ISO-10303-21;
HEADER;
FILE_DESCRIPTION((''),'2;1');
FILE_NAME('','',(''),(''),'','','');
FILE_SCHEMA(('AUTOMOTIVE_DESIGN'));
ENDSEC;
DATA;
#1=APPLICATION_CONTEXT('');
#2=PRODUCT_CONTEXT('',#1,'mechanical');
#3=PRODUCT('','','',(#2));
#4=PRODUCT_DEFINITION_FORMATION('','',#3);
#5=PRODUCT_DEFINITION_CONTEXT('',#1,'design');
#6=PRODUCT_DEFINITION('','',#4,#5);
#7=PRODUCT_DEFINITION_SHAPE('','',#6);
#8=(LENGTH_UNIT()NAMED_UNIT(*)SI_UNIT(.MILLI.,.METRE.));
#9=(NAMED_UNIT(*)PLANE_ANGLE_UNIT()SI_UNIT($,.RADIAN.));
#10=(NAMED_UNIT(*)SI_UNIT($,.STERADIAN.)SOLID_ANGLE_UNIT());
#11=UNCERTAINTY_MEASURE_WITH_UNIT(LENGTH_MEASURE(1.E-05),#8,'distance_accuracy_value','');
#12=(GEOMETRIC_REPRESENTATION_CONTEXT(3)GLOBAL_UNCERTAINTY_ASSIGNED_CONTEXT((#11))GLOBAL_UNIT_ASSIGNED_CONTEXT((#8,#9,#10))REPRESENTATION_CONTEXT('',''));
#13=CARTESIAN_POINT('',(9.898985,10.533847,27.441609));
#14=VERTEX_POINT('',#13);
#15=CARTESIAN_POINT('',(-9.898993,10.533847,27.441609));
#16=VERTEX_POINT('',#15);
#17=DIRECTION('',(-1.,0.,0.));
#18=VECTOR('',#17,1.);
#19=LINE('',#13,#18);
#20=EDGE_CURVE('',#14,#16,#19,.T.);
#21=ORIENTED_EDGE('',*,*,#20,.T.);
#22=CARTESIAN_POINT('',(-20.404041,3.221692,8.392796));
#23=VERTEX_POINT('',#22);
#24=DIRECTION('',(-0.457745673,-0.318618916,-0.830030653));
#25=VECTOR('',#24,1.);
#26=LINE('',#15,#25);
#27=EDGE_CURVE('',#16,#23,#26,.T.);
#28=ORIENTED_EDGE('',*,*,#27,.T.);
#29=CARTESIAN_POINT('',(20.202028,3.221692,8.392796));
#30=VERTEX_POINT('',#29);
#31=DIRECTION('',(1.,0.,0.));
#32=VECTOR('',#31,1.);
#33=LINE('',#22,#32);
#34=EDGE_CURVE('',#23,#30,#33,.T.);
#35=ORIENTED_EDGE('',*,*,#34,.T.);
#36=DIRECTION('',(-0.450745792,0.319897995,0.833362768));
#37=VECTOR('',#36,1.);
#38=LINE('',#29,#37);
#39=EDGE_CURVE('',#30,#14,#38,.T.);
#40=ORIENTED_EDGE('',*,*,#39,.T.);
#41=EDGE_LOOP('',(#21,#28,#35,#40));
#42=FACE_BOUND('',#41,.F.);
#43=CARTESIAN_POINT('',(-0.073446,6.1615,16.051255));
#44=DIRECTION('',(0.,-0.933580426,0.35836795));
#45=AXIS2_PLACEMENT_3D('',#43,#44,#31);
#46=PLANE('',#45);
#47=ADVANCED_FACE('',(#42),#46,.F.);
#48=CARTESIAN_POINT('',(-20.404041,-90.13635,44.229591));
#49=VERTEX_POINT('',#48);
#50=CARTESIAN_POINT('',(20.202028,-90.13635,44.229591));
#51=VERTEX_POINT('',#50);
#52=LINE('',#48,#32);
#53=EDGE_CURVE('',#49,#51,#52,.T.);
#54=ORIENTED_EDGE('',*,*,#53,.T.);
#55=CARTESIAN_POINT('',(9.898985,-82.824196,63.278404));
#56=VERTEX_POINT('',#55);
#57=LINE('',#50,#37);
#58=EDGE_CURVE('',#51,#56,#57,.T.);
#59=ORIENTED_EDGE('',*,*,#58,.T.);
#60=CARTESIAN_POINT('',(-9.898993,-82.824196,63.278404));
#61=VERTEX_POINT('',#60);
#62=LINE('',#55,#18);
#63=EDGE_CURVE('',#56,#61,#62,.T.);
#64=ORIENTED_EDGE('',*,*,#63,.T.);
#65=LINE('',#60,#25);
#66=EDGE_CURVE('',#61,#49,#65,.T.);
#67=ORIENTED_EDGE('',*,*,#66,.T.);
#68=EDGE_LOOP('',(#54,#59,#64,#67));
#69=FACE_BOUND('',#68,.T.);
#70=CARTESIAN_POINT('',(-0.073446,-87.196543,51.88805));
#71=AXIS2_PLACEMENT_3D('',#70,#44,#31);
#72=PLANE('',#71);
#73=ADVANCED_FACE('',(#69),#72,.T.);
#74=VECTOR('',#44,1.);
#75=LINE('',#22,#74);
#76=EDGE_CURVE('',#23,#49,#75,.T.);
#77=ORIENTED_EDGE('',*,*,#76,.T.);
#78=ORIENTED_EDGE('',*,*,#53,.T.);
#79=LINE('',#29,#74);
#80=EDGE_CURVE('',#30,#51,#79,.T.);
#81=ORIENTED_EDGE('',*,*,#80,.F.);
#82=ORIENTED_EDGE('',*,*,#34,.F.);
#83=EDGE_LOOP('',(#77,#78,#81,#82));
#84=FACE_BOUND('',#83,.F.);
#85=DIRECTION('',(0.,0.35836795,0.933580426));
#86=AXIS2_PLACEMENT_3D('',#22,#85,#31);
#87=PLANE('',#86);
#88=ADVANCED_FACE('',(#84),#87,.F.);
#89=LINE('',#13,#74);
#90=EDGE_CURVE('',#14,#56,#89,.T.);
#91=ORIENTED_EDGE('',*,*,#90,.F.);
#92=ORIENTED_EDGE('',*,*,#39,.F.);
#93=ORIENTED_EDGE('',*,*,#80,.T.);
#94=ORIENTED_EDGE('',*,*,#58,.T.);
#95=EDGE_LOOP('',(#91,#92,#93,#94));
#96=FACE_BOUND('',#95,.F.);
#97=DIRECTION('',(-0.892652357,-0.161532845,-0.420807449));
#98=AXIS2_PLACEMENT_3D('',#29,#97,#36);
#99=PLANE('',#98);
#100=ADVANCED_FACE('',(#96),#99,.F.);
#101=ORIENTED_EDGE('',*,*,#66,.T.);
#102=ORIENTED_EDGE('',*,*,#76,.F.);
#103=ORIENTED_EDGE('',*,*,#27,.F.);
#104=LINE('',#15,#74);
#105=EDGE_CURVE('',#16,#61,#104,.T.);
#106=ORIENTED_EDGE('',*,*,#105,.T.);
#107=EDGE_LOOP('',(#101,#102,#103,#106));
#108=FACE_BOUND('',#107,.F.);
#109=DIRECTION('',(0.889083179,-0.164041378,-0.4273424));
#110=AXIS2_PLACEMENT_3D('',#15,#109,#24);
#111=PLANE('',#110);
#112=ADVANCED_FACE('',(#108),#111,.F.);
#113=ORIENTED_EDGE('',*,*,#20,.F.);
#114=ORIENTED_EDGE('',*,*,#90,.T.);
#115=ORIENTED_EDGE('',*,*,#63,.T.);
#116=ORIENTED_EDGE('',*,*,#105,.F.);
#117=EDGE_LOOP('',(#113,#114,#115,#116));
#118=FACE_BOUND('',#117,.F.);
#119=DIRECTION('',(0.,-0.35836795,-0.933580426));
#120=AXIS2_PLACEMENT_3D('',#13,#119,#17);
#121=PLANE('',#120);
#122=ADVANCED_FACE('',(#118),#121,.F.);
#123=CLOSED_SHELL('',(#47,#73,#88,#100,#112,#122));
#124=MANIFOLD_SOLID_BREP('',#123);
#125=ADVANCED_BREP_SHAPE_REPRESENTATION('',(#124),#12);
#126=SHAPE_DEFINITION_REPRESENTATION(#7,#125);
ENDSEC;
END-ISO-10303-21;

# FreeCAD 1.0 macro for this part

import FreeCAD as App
import Part
import Sketcher

V = App.Vector
Q = App.Units.Quantity

doc = App.newDocument("Part")
body = doc.addObject("PartDesign::Body", "Body")

# Sketch on XY plane
sketch1 = doc.addObject("Sketcher::SketchObject", "Sketch")
body.addObject(sketch1)
sketch1.AttachmentSupport = (doc.XY_Plane, [""])
sketch1.MapMode = "FlatFace"
sketch1.addGeometry([
    Part.LineSegment(V(-9.898993, 29.393942, 0), V(-20.404041, 8.989901, 0)),
    Part.LineSegment(V(-20.404041, 8.989901, 0), V(20.202028, 8.989901, 0)),
    Part.LineSegment(V(20.202028, 8.989901, 0), V(9.898985, 29.393942, 0)),
    Part.LineSegment(V(9.898985, 29.393942, 0), V(-9.898993, 29.393942, 0)),
], False)
sketch1.addConstraint([
    Sketcher.Constraint("Coincident", 0, 2, 1, 1),
    Sketcher.Constraint("Coincident", 1, 2, 2, 1),
    Sketcher.Constraint("Coincident", 2, 2, 3, 1),
    Sketcher.Constraint("Coincident", 3, 2, 0, 1),
    Sketcher.Constraint("Horizontal", 1),
    Sketcher.Constraint("Horizontal", 3),
    Sketcher.Constraint("DistanceX", 1, 1, 1, 2, Q("40.606069 mm")),
    Sketcher.Constraint("DistanceX", 3, 2, 3, 1, Q("19.797978 mm")),
    Sketcher.Constraint("DistanceY", -1, 1, 0, 2, Q("8.989901 mm")),
    Sketcher.Constraint("Distance", 0, Q("22.94953 mm")),
    Sketcher.Constraint("Distance", 2, Q("22.857769 mm")),
    Sketcher.Constraint("DistanceX", 0, 2, -1, 1, Q("20.404041 mm")),
])
pad1 = doc.addObject("PartDesign::Pad", "Pad")
body.addObject(pad1)
pad1.Profile = sketch1
pad1.Length = 100
body2 = doc.addObject("PartDesign::Body", "Body001")
doc.recompute()

body.Placement = App.Placement(V(0, 0, 0), App.Rotation(V(1, 0, 0), 69))
boolean = doc.addObject("PartDesign::Boolean", "Boolean")
body2.addObject(boolean)
boolean.Type = "Fuse"
boolean.addObjects([body])

doc.recompute()
